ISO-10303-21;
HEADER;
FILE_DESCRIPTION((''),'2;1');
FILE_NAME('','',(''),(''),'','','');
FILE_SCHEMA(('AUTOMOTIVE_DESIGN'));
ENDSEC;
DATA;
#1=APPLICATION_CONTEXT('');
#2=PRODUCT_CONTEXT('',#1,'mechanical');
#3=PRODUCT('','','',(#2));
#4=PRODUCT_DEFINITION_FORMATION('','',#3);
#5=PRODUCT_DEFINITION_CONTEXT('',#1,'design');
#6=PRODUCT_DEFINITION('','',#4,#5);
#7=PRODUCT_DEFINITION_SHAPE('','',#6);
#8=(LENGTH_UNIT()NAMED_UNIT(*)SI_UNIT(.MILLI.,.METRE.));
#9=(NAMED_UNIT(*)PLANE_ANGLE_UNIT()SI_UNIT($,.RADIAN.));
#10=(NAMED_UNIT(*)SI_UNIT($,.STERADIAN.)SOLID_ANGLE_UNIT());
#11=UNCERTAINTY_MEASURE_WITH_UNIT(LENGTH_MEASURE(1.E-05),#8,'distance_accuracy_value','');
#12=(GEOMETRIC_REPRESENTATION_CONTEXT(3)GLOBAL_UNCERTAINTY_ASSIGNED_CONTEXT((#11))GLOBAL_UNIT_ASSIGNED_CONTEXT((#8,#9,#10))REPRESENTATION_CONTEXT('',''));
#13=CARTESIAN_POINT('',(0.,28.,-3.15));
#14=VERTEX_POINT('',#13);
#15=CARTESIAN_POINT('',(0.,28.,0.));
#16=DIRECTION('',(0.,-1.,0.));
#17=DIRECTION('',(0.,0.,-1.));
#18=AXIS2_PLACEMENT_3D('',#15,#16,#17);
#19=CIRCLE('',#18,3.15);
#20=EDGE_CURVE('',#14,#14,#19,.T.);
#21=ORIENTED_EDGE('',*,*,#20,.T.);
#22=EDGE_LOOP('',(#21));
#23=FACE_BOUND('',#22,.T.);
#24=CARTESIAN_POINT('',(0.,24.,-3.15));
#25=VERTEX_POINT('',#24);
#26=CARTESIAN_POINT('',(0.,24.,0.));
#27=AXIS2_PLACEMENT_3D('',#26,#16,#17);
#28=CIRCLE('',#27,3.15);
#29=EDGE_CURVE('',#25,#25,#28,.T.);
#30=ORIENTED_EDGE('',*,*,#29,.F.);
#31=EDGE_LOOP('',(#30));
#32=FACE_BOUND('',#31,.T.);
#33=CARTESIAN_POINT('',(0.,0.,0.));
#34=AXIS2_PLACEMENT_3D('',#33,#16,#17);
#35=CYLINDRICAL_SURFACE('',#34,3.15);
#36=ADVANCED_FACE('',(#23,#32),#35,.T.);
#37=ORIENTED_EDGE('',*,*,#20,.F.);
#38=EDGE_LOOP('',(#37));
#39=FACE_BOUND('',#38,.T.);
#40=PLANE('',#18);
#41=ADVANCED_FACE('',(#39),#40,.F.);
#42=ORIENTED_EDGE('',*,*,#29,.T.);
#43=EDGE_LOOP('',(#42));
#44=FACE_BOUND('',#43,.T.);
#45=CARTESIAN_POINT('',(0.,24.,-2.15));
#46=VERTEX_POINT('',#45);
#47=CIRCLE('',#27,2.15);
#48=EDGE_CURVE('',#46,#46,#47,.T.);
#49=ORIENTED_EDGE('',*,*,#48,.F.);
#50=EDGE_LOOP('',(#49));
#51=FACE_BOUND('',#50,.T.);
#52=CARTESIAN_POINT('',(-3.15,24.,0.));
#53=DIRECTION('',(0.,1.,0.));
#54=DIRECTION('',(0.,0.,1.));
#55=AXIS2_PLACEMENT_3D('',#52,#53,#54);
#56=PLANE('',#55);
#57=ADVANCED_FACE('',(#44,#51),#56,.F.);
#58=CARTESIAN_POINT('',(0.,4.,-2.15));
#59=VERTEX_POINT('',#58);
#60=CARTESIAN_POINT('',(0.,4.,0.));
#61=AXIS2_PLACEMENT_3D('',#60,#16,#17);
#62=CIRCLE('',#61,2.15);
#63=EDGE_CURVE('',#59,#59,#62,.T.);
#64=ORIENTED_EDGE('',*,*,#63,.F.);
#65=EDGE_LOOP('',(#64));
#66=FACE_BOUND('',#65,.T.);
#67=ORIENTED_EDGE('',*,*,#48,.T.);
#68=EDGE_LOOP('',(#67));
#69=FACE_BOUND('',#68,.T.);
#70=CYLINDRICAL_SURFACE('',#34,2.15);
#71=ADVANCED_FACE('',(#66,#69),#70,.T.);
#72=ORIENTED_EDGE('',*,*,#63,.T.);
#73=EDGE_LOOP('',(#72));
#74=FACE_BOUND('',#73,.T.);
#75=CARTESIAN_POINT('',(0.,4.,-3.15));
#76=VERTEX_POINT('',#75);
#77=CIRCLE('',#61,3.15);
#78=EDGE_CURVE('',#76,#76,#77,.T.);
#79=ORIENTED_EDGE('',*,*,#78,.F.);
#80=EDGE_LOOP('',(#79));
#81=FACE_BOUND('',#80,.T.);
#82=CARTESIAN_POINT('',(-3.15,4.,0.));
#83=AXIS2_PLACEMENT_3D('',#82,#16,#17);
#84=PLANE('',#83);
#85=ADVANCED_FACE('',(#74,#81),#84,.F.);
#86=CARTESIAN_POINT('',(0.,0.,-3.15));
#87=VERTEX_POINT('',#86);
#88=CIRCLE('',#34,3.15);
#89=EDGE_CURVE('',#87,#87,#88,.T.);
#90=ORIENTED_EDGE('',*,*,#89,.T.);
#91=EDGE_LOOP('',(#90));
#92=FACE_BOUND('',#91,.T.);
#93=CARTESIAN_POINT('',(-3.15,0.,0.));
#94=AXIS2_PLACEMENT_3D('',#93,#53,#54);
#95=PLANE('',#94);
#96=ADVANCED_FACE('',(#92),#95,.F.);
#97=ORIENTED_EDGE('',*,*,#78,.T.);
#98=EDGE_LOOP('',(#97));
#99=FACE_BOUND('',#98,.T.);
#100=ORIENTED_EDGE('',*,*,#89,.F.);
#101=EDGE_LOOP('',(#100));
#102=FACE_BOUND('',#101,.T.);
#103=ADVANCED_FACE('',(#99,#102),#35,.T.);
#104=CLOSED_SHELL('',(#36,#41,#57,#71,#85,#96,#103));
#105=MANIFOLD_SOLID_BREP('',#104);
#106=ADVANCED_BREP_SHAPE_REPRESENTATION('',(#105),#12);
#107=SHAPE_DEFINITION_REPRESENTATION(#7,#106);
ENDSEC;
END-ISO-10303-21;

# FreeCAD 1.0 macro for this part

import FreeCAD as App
import Part
import Sketcher


def add_polygon(sketch, points):
    """Adds a closed chain of lines whose ends are joined by coincident constraints."""
    first, n = sketch.GeometryCount, len(points)
    for a, b in zip(points, points[1:] + points[:1]):
        sketch.addGeometry(Part.LineSegment(App.Vector(*a, 0), App.Vector(*b, 0)), False)
    for i in range(n):
        sketch.addConstraint(Sketcher.Constraint("Coincident", first + i, 2, first + (i + 1) % n, 1))

doc = App.newDocument("Part")
body = doc.addObject("PartDesign::Body", "Body")

# Sketch on XY plane
sketch1 = body.newObject("Sketcher::SketchObject", "Sketch")
sketch1.AttachmentSupport = (doc.getObject("XY_Plane"), [""])
sketch1.MapMode = "FlatFace"
add_polygon(sketch1, [(0, 0), (0, 28), (-3.1, 28), (-3.1, 24), (-2.1, 24), (-2.1, 4), (-3.1, 4), (-3.1, 0)])  # lines 0-7
sketch1.addConstraint([
    Sketcher.Constraint("Vertical", 0),
    Sketcher.Constraint("Horizontal", 1),
    Sketcher.Constraint("Vertical", 2),
    Sketcher.Constraint("Horizontal", 3),
    Sketcher.Constraint("Vertical", 4),
    Sketcher.Constraint("Horizontal", 5),
    Sketcher.Constraint("Vertical", 6),
    Sketcher.Constraint("Horizontal", 7),
    Sketcher.Constraint("Coincident", 7, 2, -1, 1),
    Sketcher.Constraint("Vertical", 2, 2, 5, 2),
    Sketcher.Constraint("Equal", 2, 6),
    Sketcher.Constraint("DistanceX", 3, 1, 3, 2, 1.0),
    Sketcher.Constraint("DistanceY", 0, 1, 0, 2, 28.0),
    Sketcher.Constraint("DistanceY", 2, 2, 2, 1, 4.0),
    Sketcher.Constraint("DistanceX", 1, 2, 1, 1, 3.15),
])
revolution = body.newObject("PartDesign::Revolution", "Revolution")
revolution.Profile = sketch1
revolution.ReferenceAxis = (sketch1, ["V_Axis"])
revolution.Angle = 360

doc.recompute()
